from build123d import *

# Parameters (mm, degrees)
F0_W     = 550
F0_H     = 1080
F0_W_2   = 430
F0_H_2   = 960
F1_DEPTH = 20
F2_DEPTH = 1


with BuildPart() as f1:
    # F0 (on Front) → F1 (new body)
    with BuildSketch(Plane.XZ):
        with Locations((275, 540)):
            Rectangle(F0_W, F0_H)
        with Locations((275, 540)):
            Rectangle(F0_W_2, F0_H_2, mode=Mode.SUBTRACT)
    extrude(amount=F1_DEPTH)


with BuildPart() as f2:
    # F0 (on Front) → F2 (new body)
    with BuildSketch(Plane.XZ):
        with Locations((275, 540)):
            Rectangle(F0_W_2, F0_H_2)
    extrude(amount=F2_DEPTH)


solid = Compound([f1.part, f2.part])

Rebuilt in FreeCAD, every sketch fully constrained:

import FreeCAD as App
import Part
import Sketcher
Q = App.Units.Quantity


def add_polygon(sketch, points):
    """Adds a closed chain of lines whose ends are joined by coincident constraints."""
    first, n = sketch.GeometryCount, len(points)
    for a, b in zip(points, points[1:] + points[:1]):
        sketch.addGeometry(Part.LineSegment(App.Vector(*a, 0), App.Vector(*b, 0)), False)
    for i in range(n):
        sketch.addConstraint(Sketcher.Constraint("Coincident", first + i, 2, first + (i + 1) % n, 1))

doc = App.newDocument("Part")
body = doc.addObject("PartDesign::Body", "Body")

# Sketch on XZ plane
sketch1 = body.newObject("Sketcher::SketchObject", "Sketch")
sketch1.AttachmentSupport = (doc.getObject("XZ_Plane"), [""])
sketch1.MapMode = "FlatFace"
add_polygon(sketch1, [(0, 1080), (0, 0), (550, 0), (550, 1080)])  # lines 0-3
add_polygon(sketch1, [(490, 60), (60, 60), (60, 1020), (490, 1020)])  # lines 4-7
sketch1.addConstraint([
    Sketcher.Constraint("Vertical", 0),
    Sketcher.Constraint("Horizontal", 1),
    Sketcher.Constraint("Vertical", 2),
    Sketcher.Constraint("Horizontal", 3),
    Sketcher.Constraint("Horizontal", 4),
    Sketcher.Constraint("Vertical", 5),
    Sketcher.Constraint("Horizontal", 6),
    Sketcher.Constraint("Vertical", 7),
    Sketcher.Constraint("Coincident", 0, 2, -1, 1),
    Sketcher.Constraint("DistanceX", 1, 1, 1, 2, Q("550 mm")),
    Sketcher.Constraint("DistanceX", 4, 2, 4, 1, Q("430 mm")),
    Sketcher.Constraint("DistanceY", 0, 2, 0, 1, Q("1080 mm")),
    Sketcher.Constraint("DistanceY", 5, 1, 5, 2, Q("960 mm")),
    Sketcher.Constraint("DistanceX", -1, 1, 4, 2, Q("60 mm")),
    Sketcher.Constraint("DistanceY", -1, 1, 4, 2, Q("60 mm")),
])
pad1 = body.newObject("PartDesign::Pad", "Pad")
pad1.Profile = sketch1
pad1.Length = 20
body2 = doc.addObject("PartDesign::Body", "Body001")

# Sketch on XZ plane
sketch2 = body2.newObject("Sketcher::SketchObject", "Sketch001")
sketch2.AttachmentSupport = (doc.getObject("XZ_Plane001"), [""])
sketch2.MapMode = "FlatFace"
add_polygon(sketch2, [(60, 1020), (60, 60), (490, 60), (490, 1020)])  # lines 0-3
sketch2.addConstraint([
    Sketcher.Constraint("Vertical", 0),
    Sketcher.Constraint("Horizontal", 1),
    Sketcher.Constraint("Vertical", 2),
    Sketcher.Constraint("Horizontal", 3),
    Sketcher.Constraint("DistanceX", 1, 1, 1, 2, Q("430 mm")),
    Sketcher.Constraint("DistanceY", 0, 2, 0, 1, Q("960 mm")),
    Sketcher.Constraint("DistanceX", -1, 1, 0, 2, Q("60 mm")),
    Sketcher.Constraint("DistanceY", -1, 1, 0, 2, Q("60 mm")),
])
pad2 = body2.newObject("PartDesign::Pad", "Pad001")
pad2.Profile = sketch2
pad2.Length = 1

doc.recompute()
